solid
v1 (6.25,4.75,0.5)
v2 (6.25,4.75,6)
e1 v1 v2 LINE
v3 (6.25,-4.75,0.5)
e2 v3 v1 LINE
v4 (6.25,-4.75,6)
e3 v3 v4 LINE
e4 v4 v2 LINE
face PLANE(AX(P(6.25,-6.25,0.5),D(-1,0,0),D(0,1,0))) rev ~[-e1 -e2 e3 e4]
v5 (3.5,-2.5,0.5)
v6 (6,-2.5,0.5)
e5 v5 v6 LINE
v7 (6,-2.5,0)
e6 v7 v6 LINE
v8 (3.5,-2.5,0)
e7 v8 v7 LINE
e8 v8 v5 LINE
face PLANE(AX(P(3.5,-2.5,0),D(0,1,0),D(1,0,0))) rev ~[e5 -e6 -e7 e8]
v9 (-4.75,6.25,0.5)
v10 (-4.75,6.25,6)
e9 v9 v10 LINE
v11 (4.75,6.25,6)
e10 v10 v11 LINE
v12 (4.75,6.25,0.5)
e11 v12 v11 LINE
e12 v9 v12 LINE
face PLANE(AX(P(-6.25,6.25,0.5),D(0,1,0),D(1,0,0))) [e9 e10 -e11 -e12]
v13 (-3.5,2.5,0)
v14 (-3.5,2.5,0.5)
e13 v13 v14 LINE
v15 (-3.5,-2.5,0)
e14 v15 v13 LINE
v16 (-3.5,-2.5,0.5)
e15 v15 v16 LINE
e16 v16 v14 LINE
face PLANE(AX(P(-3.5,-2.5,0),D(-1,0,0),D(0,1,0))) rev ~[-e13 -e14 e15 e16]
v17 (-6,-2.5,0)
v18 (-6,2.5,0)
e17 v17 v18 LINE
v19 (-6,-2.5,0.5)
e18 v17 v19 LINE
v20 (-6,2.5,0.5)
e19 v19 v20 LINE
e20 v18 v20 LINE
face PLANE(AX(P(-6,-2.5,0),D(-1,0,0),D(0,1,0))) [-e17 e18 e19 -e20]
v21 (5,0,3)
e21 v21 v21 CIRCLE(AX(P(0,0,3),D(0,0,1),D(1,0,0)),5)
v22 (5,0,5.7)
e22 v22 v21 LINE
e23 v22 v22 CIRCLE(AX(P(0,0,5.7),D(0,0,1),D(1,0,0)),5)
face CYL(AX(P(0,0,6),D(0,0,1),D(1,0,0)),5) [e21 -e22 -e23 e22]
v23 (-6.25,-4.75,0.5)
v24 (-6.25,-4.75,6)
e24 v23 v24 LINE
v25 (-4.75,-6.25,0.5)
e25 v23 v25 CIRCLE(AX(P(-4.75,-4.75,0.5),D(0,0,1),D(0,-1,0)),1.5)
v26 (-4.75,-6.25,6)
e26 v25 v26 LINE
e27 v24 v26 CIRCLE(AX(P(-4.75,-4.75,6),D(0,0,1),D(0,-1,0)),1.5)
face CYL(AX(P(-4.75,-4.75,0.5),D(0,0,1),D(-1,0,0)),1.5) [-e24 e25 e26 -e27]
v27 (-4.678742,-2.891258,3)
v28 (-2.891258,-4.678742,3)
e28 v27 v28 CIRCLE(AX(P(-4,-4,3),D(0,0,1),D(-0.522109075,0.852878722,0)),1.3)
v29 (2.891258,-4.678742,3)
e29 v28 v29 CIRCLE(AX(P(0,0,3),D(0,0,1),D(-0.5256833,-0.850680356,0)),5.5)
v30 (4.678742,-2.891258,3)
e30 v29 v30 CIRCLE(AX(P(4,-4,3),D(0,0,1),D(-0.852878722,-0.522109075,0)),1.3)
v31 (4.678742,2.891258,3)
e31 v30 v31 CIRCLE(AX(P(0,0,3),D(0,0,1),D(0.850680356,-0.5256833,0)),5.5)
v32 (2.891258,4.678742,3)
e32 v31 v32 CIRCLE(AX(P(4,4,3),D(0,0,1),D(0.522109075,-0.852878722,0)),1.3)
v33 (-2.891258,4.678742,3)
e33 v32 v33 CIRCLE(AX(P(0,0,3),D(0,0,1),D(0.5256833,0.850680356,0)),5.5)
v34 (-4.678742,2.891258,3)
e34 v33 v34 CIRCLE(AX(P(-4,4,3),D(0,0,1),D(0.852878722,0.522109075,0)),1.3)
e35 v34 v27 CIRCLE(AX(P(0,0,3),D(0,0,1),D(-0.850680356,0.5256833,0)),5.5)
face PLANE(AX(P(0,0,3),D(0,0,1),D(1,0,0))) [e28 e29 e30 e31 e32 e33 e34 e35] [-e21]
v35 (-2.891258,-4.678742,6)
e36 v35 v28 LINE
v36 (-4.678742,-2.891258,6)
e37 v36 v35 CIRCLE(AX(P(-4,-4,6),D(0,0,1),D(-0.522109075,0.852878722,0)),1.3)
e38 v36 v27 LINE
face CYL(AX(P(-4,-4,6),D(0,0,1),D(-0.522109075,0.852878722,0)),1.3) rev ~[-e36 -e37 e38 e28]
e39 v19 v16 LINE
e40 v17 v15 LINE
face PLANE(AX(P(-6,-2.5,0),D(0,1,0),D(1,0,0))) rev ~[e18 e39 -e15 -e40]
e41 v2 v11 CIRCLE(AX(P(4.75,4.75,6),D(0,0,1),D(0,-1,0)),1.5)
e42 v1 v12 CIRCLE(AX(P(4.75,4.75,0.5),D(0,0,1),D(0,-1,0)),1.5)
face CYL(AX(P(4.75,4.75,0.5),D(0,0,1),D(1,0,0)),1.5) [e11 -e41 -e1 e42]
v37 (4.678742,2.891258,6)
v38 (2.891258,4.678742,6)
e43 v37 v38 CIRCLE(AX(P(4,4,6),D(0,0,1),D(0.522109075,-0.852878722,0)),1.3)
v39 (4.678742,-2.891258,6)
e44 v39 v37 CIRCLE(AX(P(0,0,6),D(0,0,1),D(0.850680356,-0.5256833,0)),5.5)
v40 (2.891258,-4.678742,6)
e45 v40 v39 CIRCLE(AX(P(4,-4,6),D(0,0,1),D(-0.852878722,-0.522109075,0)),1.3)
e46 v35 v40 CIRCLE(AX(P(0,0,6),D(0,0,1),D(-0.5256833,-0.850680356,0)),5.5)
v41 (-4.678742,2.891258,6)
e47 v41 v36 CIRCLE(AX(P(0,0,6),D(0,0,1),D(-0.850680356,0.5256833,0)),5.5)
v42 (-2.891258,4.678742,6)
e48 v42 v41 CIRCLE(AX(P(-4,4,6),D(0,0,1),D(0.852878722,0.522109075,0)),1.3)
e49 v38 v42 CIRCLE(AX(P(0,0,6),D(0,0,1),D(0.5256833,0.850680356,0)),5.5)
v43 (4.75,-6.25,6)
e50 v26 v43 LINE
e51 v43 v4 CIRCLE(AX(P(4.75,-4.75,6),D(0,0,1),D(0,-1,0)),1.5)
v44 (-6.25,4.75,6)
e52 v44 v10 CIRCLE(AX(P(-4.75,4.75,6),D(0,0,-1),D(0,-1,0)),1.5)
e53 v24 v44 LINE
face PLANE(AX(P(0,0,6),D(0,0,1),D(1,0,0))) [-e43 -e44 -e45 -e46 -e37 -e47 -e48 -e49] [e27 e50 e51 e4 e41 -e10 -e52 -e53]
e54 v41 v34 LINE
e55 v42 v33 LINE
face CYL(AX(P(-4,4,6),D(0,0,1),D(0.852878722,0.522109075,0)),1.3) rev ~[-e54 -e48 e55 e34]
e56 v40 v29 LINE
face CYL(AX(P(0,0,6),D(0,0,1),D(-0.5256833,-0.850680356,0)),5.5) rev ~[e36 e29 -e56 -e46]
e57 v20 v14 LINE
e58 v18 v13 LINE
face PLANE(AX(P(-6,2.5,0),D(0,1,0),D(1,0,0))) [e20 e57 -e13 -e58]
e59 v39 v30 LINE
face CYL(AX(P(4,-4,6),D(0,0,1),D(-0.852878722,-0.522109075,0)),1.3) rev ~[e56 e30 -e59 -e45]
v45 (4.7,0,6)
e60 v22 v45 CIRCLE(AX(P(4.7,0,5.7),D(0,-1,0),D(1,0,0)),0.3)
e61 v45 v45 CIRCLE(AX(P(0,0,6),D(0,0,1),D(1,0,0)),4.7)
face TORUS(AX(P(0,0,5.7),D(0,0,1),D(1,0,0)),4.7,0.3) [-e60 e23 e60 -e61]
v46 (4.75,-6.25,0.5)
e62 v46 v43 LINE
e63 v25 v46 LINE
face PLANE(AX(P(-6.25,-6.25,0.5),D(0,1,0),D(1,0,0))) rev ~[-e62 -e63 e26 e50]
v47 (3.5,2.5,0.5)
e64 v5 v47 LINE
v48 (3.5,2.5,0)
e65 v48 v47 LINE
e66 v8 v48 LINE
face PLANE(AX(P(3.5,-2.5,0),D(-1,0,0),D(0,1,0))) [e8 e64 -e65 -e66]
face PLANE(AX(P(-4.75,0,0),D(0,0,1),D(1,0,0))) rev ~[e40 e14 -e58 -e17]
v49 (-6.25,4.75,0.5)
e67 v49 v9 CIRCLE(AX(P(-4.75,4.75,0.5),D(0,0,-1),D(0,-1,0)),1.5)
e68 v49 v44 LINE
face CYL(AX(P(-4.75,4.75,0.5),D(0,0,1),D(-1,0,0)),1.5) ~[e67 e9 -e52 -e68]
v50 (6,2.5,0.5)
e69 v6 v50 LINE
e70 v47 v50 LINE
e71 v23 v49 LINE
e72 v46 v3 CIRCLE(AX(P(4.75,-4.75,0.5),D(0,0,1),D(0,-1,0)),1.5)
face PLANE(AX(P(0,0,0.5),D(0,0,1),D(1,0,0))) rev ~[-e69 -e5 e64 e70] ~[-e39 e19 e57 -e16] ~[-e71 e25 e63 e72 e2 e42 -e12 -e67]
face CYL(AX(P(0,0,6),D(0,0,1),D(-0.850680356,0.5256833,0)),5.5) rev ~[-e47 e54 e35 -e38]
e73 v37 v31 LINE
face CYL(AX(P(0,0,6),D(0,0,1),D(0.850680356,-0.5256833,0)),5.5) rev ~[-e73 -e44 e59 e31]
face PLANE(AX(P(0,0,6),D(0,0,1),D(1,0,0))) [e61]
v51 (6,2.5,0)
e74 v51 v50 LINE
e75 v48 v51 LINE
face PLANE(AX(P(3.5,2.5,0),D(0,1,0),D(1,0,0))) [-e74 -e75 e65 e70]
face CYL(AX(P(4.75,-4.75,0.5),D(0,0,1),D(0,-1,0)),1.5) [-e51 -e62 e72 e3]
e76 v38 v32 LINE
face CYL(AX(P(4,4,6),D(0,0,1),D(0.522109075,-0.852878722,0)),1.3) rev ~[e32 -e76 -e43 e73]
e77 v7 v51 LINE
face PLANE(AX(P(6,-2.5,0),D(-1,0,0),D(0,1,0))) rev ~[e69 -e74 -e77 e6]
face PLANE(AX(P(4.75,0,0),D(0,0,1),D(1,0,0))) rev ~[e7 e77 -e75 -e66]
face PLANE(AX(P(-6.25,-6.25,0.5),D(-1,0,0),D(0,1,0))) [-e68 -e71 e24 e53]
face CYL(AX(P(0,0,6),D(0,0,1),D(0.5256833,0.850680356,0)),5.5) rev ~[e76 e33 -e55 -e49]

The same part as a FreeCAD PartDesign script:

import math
import FreeCAD as App
import Part
import Sketcher


def edges_at(feature, points):
    """Names of the edges that pass closest to the given points."""
    edges = feature.Shape.Edges
    near = lambda p: min(range(len(edges)), key=lambda i: edges[i].distToShape(Part.Vertex(*p))[0])
    return sorted({f"Edge{near(p) + 1}" for p in points})

doc = App.newDocument("Part")
body = doc.addObject("PartDesign::Body", "Body")

# Sketch on XY plane
sketch1 = body.newObject("Sketcher::SketchObject", "Sketch")
sketch1.AttachmentSupport = (doc.getObject("XY_Plane"), [""])
sketch1.MapMode = "FlatFace"
sketch1.addGeometry([
    Part.LineSegment(App.Vector(-6, 2.5, 0), App.Vector(-6, -2.5, 0)),
    Part.LineSegment(App.Vector(-6, -2.5, 0), App.Vector(-3.5, -2.5, 0)),
    Part.LineSegment(App.Vector(-3.5, -2.5, 0), App.Vector(-3.5, 2.5, 0)),
    Part.LineSegment(App.Vector(-3.5, 2.5, 0), App.Vector(-6, 2.5, 0)),
], False)
sketch1.addConstraint([
    Sketcher.Constraint("Coincident", 0, 2, 1, 1),
    Sketcher.Constraint("Coincident", 1, 2, 2, 1),
    Sketcher.Constraint("Coincident", 2, 2, 3, 1),
    Sketcher.Constraint("Coincident", 3, 2, 0, 1),
    Sketcher.Constraint("Vertical", 0),
    Sketcher.Constraint("Horizontal", 1),
    Sketcher.Constraint("Vertical", 2),
    Sketcher.Constraint("Horizontal", 3),
    Sketcher.Constraint("DistanceY", 0, 2, 0, 1, 5.0),
    Sketcher.Constraint("DistanceX", 1, 1, 1, 2, 2.5),
    Sketcher.Constraint("DistanceX", 0, 2, -1, 1, 6.0),
    Sketcher.Constraint("DistanceY", 0, 2, -1, 1, 2.5),
])
pad1 = body.newObject("PartDesign::Pad", "Pad")
pad1.Profile = sketch1
pad1.Length = 0.5
body2 = doc.addObject("PartDesign::Body", "Body001")

# Sketch on XY plane
sketch2 = body2.newObject("Sketcher::SketchObject", "Sketch001")
sketch2.AttachmentSupport = (doc.getObject("XY_Plane001"), [""])
sketch2.MapMode = "FlatFace"
sketch2.addGeometry([
    Part.LineSegment(App.Vector(3.5, 2.5, 0), App.Vector(3.5, -2.5, 0)),
    Part.LineSegment(App.Vector(3.5, -2.5, 0), App.Vector(6, -2.5, 0)),
    Part.LineSegment(App.Vector(6, -2.5, 0), App.Vector(6, 2.5, 0)),
    Part.LineSegment(App.Vector(6, 2.5, 0), App.Vector(3.5, 2.5, 0)),
], False)
sketch2.addConstraint([
    Sketcher.Constraint("Coincident", 0, 2, 1, 1),
    Sketcher.Constraint("Coincident", 1, 2, 2, 1),
    Sketcher.Constraint("Coincident", 2, 2, 3, 1),
    Sketcher.Constraint("Coincident", 3, 2, 0, 1),
    Sketcher.Constraint("Vertical", 0),
    Sketcher.Constraint("Horizontal", 1),
    Sketcher.Constraint("Vertical", 2),
    Sketcher.Constraint("Horizontal", 3),
    Sketcher.Constraint("DistanceY", 0, 2, 0, 1, 5.0),
    Sketcher.Constraint("DistanceX", 1, 1, 1, 2, 2.5),
    Sketcher.Constraint("DistanceX", -1, 1, 1, 2, 6.0),
    Sketcher.Constraint("DistanceY", 0, 2, -1, 1, 2.5),
])
pad2 = body2.newObject("PartDesign::Pad", "Pad001")
pad2.Profile = sketch2
pad2.Length = 0.5
body3 = doc.addObject("PartDesign::Body", "Body002")

# Sketch on XY plane
sketch3 = body3.newObject("Sketcher::SketchObject", "Sketch002")
sketch3.AttachmentSupport = (doc.getObject("XY_Plane002"), [""])
sketch3.MapMode = "FlatFace"
sketch3.addGeometry([
    Part.LineSegment(App.Vector(-6.25, 6.25, 0), App.Vector(-6.25, -6.25, 0)),
    Part.LineSegment(App.Vector(-6.25, -6.25, 0), App.Vector(6.25, -6.25, 0)),
    Part.LineSegment(App.Vector(6.25, -6.25, 0), App.Vector(6.25, 6.25, 0)),
    Part.LineSegment(App.Vector(6.25, 6.25, 0), App.Vector(-6.25, 6.25, 0)),
], False)
sketch3.addConstraint([
    Sketcher.Constraint("Coincident", 0, 2, 1, 1),
    Sketcher.Constraint("Coincident", 1, 2, 2, 1),
    Sketcher.Constraint("Coincident", 2, 2, 3, 1),
    Sketcher.Constraint("Coincident", 3, 2, 0, 1),
    Sketcher.Constraint("Vertical", 0),
    Sketcher.Constraint("Horizontal", 1),
    Sketcher.Constraint("Vertical", 2),
    Sketcher.Constraint("Horizontal", 3),
    Sketcher.Constraint("Symmetric", 0, 2, 2, 2, -1, 1),
    Sketcher.Constraint("Equal", 3, 0),
    Sketcher.Constraint("DistanceX", 1, 1, 1, 2, 12.5),
])
pad3 = body3.newObject("PartDesign::Pad", "Pad002")
pad3.Profile = sketch3
pad3.Length = 5.5
doc.recompute()

fillet = body3.newObject("PartDesign::Fillet", "Fillet")
fillet.Base = (pad3, edges_at(pad3, [
    (-6.25, -6.25, 2.75),
    (6.25, -6.25, 2.75),
    (-6.25, 6.25, 2.75),
    (6.25, 6.25, 2.75),
]))
fillet.Radius = 1.5

# Sketch on XY plane
sketch4 = body3.newObject("Sketcher::SketchObject", "Sketch003")
sketch4.AttachmentSupport = (doc.getObject("XY_Plane002"), [""])
sketch4.MapMode = "FlatFace"
sketch4.AttachmentOffset = App.Placement(App.Vector(0, 0, 5.5), App.Rotation())
sketch4.addGeometry([
    Part.ArcOfCircle(Part.Circle(App.Vector(0, 0, 0), App.Vector(0, 0, 1), 5.5), math.radians(148.285746), math.radians(211.714254)),  # 0
    Part.ArcOfCircle(Part.Circle(App.Vector(-4, -4, 0), App.Vector(0, 0, 1), 1.3), math.radians(121.473831), math.radians(328.526169)),  # 1
    Part.ArcOfCircle(Part.Circle(App.Vector(0, 0, 0), App.Vector(0, 0, 1), 5.5), math.radians(-121.714254), math.radians(-58.285746)),  # 2
    Part.ArcOfCircle(Part.Circle(App.Vector(4, -4, 0), App.Vector(0, 0, 1), 1.3), math.radians(-148.526169), math.radians(58.526169)),  # 3
    Part.ArcOfCircle(Part.Circle(App.Vector(0, 0, 0), App.Vector(0, 0, 1), 5.5), math.radians(-31.714254), math.radians(31.714254)),  # 4
    Part.ArcOfCircle(Part.Circle(App.Vector(4, 4, 0), App.Vector(0, 0, 1), 1.3), math.radians(-58.526169), math.radians(148.526169)),  # 5
    Part.ArcOfCircle(Part.Circle(App.Vector(0, 0, 0), App.Vector(0, 0, 1), 5.5), math.radians(58.285746), math.radians(121.714254)),  # 6
    Part.ArcOfCircle(Part.Circle(App.Vector(-4, 4, 0), App.Vector(0, 0, 1), 1.3), math.radians(31.473831), math.radians(238.526169)),  # 7
    Part.Circle(App.Vector(0, 0, 0), App.Vector(0, 0, 1), 5),  # 8
], False)
sketch4.addConstraint([
    Sketcher.Constraint("Coincident", 0, 2, 1, 1),
    Sketcher.Constraint("Coincident", 1, 2, 2, 1),
    Sketcher.Constraint("Coincident", 2, 2, 3, 1),
    Sketcher.Constraint("Coincident", 3, 2, 4, 1),
    Sketcher.Constraint("Coincident", 4, 2, 5, 1),
    Sketcher.Constraint("Coincident", 5, 2, 6, 1),
    Sketcher.Constraint("Coincident", 6, 2, 7, 1),
    Sketcher.Constraint("Coincident", 7, 2, 0, 1),
    Sketcher.Constraint("Coincident", 0, 3, -1, 1),
    Sketcher.Constraint("Coincident", 2, 3, -1, 1),
    Sketcher.Constraint("Coincident", 4, 3, -1, 1),
    Sketcher.Constraint("Coincident", 6, 3, -1, 1),
    Sketcher.Constraint("Coincident", 8, 3, -1, 1),
    Sketcher.Constraint("Equal", 0, 2),
    Sketcher.Constraint("Equal", 1, 3),
    Sketcher.Constraint("Equal", 2, 4),
    Sketcher.Constraint("Equal", 3, 5),
    Sketcher.Constraint("Equal", 4, 6),
    Sketcher.Constraint("Equal", 5, 7),
    Sketcher.Constraint("Symmetric", 1, 3, 5, 3, -1, 1),
    Sketcher.Constraint("Symmetric", 3, 3, 7, 3, -1, 1),
    Sketcher.Constraint("Symmetric", 1, 3, 3, 3, -2),
    Sketcher.Constraint("Diameter", 8, 10.0),
    Sketcher.Constraint("Radius", 0, 5.5),
    Sketcher.Constraint("Radius", 1, 1.3),
    Sketcher.Constraint("DistanceX", 1, 3, -1, 1, 4.0),
    Sketcher.Constraint("DistanceY", 1, 3, -1, 1, 4.0),
])
pocket1 = body3.newObject("PartDesign::Pocket", "Pocket")
pocket1.Profile = sketch4
pocket1.Length = 3
doc.recompute()

fillet2 = body3.newObject("PartDesign::Fillet", "Fillet001")
fillet2.Base = (pocket1, edges_at(pocket1, [(-5, 0, 5.5)]))
fillet2.Radius = 0.3
body4 = doc.addObject("PartDesign::Body", "Body003")
doc.recompute()

body3.Placement = App.Placement(App.Vector(0, 0, 0.5), App.Rotation(App.Vector(0, 0, 1), 0))
boolean = body4.newObject("PartDesign::Boolean", "Boolean")
boolean.Type = "Fuse"
boolean.addObjects([body3])
doc.recompute()

boolean2 = body4.newObject("PartDesign::Boolean", "Boolean001")
boolean2.Type = "Fuse"
boolean2.addObjects([body])
doc.recompute()

boolean3 = body4.newObject("PartDesign::Boolean", "Boolean002")
boolean3.Type = "Fuse"
boolean3.addObjects([body2])

doc.recompute()
